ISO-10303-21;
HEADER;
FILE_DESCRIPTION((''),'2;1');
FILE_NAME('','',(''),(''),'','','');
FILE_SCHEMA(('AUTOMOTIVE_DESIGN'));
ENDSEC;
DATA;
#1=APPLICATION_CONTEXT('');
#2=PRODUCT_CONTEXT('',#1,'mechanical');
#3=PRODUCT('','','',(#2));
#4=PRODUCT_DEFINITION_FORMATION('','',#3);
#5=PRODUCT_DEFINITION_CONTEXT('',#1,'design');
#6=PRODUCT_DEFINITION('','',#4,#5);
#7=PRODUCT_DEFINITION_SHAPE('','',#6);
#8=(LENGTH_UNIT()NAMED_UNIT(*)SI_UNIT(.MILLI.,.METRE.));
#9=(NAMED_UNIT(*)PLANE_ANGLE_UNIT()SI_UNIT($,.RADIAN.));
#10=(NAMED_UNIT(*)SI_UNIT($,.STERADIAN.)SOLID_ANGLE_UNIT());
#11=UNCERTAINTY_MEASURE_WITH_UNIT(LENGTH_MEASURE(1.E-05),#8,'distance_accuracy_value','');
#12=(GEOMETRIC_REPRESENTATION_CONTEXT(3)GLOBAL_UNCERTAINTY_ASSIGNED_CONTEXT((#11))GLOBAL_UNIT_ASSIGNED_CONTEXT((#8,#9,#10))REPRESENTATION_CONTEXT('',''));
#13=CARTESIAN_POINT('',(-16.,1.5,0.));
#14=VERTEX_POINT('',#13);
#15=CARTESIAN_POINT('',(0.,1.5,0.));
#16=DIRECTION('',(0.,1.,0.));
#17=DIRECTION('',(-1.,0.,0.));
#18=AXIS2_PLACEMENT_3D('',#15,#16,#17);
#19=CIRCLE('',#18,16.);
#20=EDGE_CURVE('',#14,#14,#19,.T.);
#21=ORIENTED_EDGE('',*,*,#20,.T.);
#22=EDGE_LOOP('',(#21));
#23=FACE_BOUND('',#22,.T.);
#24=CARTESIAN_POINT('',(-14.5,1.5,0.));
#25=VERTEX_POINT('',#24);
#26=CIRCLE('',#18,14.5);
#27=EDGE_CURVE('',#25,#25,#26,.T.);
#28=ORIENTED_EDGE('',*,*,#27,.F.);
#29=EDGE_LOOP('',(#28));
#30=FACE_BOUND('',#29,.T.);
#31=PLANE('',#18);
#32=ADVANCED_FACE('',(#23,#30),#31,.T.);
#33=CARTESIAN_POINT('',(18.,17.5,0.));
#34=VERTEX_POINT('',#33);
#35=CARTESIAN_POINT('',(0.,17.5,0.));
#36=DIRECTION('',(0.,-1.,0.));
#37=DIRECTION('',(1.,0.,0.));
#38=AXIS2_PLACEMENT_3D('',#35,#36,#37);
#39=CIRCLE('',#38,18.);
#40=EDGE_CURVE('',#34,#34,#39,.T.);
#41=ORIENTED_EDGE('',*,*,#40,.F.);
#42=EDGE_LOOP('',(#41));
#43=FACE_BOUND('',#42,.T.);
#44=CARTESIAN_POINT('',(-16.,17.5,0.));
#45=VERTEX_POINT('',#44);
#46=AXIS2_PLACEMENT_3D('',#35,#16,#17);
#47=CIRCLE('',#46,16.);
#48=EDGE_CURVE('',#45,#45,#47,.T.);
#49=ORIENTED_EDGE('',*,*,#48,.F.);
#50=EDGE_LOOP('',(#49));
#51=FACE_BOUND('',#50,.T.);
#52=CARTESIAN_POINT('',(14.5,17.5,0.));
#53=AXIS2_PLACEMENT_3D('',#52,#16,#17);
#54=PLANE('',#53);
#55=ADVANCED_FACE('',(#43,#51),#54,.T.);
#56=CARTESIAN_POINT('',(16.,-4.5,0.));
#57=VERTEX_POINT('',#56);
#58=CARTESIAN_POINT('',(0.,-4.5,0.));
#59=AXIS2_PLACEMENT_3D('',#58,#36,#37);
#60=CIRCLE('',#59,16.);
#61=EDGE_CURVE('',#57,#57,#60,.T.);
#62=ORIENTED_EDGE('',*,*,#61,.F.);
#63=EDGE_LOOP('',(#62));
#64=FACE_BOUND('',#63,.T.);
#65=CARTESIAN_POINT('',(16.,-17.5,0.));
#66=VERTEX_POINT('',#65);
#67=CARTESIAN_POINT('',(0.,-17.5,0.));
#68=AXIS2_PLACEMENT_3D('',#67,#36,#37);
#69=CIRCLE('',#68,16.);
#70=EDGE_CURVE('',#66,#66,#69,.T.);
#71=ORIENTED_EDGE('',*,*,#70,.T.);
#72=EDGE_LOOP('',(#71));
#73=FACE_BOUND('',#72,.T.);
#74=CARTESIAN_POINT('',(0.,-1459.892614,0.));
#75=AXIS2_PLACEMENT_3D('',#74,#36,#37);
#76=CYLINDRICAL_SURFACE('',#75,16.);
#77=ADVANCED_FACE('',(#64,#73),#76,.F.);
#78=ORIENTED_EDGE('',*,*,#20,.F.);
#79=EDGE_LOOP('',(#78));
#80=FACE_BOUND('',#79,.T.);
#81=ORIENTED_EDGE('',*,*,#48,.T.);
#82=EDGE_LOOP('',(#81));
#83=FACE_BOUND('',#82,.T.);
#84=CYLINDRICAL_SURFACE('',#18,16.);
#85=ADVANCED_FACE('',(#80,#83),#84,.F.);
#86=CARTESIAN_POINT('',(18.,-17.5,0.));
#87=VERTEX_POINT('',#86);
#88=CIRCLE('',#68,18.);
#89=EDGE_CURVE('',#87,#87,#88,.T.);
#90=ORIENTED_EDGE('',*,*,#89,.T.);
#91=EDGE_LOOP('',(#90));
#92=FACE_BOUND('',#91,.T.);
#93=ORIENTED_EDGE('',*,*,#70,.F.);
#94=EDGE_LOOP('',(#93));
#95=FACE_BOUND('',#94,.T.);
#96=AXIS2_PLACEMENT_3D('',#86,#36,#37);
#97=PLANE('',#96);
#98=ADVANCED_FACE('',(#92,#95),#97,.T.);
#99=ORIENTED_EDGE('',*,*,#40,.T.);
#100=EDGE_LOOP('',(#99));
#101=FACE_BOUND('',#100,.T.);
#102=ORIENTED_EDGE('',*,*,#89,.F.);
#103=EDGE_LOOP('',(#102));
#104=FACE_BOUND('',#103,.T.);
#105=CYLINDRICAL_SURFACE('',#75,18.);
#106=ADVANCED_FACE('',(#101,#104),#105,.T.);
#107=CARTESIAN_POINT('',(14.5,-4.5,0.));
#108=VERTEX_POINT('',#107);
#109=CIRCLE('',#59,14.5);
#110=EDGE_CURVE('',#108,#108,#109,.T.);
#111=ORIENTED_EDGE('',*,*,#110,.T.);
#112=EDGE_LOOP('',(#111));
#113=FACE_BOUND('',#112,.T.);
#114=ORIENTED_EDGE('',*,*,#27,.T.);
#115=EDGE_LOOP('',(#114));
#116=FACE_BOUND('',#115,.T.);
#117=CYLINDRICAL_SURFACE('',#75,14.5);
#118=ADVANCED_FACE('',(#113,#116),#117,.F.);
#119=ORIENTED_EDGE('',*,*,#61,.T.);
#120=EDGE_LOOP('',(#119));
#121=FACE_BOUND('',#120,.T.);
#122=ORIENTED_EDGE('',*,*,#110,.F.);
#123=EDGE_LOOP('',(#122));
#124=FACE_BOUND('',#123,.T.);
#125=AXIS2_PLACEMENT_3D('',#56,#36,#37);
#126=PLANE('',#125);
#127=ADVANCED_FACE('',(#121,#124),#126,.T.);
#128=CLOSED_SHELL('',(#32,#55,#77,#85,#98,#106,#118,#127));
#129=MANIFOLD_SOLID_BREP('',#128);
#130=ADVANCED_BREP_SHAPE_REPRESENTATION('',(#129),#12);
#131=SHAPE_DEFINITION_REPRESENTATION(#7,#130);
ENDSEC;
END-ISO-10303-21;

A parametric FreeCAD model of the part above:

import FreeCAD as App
import Part
import Sketcher
Q = App.Units.Quantity


def add_polygon(sketch, points):
    """Adds a closed chain of lines whose ends are joined by coincident constraints."""
    first, n = sketch.GeometryCount, len(points)
    for a, b in zip(points, points[1:] + points[:1]):
        sketch.addGeometry(Part.LineSegment(App.Vector(*a, 0), App.Vector(*b, 0)), False)
    for i in range(n):
        sketch.addConstraint(Sketcher.Constraint("Coincident", first + i, 2, first + (i + 1) % n, 1))

doc = App.newDocument("Part")
body = doc.addObject("PartDesign::Body", "Body")

# Sketch on XY plane
sketch1 = body.newObject("Sketcher::SketchObject", "Sketch")
sketch1.AttachmentSupport = (doc.getObject("XY_Plane"), [""])
sketch1.MapMode = "FlatFace"
add_polygon(sketch1, [(16, -4.5), (16, -17.5), (18, -17.5), (18, 17.5), (14.5, 17.5), (14.5, -4.5)])  # lines 0-5
sketch1.addConstraint([
    Sketcher.Constraint("Vertical", 0),
    Sketcher.Constraint("Horizontal", 1),
    Sketcher.Constraint("Vertical", 2),
    Sketcher.Constraint("Horizontal", 3),
    Sketcher.Constraint("Vertical", 4),
    Sketcher.Constraint("Horizontal", 5),
    Sketcher.Constraint("DistanceX", 1, 1, 1, 2, Q("2 mm")),
    Sketcher.Constraint("DistanceY", 0, 2, 0, 1, Q("13 mm")),
    Sketcher.Constraint("DistanceY", 2, 1, 2, 2, Q("35 mm")),
    Sketcher.Constraint("DistanceX", 3, 2, 3, 1, Q("3.5 mm")),
    Sketcher.Constraint("DistanceX", -1, 1, 0, 2, Q("16 mm")),
    Sketcher.Constraint("DistanceY", 0, 2, -1, 1, Q("17.5 mm")),
])
revolution = body.newObject("PartDesign::Revolution", "Revolution")
revolution.Profile = sketch1
revolution.ReferenceAxis = (sketch1, ["V_Axis"])
revolution.Angle = 360

# Sketch on XZ plane
sketch2 = body.newObject("Sketcher::SketchObject", "Sketch001")
sketch2.AttachmentSupport = (doc.getObject("XZ_Plane"), [""])
sketch2.MapMode = "FlatFace"
sketch2.AttachmentOffset = App.Placement(App.Vector(0, 0, -17.5), App.Rotation())
sketch2.addGeometry(Part.Circle(App.Vector(0, 0, 0), App.Vector(0, 0, 1), 16), False)
sketch2.addConstraint([
    Sketcher.Constraint("Coincident", 0, 3, -1, 1),
    Sketcher.Constraint("Diameter", 0, Q("32 mm")),
])
pocket1 = body.newObject("PartDesign::Pocket", "Pocket")
pocket1.Profile = sketch2
pocket1.Length = 16
pocket1.Reversed = True

doc.recompute()
